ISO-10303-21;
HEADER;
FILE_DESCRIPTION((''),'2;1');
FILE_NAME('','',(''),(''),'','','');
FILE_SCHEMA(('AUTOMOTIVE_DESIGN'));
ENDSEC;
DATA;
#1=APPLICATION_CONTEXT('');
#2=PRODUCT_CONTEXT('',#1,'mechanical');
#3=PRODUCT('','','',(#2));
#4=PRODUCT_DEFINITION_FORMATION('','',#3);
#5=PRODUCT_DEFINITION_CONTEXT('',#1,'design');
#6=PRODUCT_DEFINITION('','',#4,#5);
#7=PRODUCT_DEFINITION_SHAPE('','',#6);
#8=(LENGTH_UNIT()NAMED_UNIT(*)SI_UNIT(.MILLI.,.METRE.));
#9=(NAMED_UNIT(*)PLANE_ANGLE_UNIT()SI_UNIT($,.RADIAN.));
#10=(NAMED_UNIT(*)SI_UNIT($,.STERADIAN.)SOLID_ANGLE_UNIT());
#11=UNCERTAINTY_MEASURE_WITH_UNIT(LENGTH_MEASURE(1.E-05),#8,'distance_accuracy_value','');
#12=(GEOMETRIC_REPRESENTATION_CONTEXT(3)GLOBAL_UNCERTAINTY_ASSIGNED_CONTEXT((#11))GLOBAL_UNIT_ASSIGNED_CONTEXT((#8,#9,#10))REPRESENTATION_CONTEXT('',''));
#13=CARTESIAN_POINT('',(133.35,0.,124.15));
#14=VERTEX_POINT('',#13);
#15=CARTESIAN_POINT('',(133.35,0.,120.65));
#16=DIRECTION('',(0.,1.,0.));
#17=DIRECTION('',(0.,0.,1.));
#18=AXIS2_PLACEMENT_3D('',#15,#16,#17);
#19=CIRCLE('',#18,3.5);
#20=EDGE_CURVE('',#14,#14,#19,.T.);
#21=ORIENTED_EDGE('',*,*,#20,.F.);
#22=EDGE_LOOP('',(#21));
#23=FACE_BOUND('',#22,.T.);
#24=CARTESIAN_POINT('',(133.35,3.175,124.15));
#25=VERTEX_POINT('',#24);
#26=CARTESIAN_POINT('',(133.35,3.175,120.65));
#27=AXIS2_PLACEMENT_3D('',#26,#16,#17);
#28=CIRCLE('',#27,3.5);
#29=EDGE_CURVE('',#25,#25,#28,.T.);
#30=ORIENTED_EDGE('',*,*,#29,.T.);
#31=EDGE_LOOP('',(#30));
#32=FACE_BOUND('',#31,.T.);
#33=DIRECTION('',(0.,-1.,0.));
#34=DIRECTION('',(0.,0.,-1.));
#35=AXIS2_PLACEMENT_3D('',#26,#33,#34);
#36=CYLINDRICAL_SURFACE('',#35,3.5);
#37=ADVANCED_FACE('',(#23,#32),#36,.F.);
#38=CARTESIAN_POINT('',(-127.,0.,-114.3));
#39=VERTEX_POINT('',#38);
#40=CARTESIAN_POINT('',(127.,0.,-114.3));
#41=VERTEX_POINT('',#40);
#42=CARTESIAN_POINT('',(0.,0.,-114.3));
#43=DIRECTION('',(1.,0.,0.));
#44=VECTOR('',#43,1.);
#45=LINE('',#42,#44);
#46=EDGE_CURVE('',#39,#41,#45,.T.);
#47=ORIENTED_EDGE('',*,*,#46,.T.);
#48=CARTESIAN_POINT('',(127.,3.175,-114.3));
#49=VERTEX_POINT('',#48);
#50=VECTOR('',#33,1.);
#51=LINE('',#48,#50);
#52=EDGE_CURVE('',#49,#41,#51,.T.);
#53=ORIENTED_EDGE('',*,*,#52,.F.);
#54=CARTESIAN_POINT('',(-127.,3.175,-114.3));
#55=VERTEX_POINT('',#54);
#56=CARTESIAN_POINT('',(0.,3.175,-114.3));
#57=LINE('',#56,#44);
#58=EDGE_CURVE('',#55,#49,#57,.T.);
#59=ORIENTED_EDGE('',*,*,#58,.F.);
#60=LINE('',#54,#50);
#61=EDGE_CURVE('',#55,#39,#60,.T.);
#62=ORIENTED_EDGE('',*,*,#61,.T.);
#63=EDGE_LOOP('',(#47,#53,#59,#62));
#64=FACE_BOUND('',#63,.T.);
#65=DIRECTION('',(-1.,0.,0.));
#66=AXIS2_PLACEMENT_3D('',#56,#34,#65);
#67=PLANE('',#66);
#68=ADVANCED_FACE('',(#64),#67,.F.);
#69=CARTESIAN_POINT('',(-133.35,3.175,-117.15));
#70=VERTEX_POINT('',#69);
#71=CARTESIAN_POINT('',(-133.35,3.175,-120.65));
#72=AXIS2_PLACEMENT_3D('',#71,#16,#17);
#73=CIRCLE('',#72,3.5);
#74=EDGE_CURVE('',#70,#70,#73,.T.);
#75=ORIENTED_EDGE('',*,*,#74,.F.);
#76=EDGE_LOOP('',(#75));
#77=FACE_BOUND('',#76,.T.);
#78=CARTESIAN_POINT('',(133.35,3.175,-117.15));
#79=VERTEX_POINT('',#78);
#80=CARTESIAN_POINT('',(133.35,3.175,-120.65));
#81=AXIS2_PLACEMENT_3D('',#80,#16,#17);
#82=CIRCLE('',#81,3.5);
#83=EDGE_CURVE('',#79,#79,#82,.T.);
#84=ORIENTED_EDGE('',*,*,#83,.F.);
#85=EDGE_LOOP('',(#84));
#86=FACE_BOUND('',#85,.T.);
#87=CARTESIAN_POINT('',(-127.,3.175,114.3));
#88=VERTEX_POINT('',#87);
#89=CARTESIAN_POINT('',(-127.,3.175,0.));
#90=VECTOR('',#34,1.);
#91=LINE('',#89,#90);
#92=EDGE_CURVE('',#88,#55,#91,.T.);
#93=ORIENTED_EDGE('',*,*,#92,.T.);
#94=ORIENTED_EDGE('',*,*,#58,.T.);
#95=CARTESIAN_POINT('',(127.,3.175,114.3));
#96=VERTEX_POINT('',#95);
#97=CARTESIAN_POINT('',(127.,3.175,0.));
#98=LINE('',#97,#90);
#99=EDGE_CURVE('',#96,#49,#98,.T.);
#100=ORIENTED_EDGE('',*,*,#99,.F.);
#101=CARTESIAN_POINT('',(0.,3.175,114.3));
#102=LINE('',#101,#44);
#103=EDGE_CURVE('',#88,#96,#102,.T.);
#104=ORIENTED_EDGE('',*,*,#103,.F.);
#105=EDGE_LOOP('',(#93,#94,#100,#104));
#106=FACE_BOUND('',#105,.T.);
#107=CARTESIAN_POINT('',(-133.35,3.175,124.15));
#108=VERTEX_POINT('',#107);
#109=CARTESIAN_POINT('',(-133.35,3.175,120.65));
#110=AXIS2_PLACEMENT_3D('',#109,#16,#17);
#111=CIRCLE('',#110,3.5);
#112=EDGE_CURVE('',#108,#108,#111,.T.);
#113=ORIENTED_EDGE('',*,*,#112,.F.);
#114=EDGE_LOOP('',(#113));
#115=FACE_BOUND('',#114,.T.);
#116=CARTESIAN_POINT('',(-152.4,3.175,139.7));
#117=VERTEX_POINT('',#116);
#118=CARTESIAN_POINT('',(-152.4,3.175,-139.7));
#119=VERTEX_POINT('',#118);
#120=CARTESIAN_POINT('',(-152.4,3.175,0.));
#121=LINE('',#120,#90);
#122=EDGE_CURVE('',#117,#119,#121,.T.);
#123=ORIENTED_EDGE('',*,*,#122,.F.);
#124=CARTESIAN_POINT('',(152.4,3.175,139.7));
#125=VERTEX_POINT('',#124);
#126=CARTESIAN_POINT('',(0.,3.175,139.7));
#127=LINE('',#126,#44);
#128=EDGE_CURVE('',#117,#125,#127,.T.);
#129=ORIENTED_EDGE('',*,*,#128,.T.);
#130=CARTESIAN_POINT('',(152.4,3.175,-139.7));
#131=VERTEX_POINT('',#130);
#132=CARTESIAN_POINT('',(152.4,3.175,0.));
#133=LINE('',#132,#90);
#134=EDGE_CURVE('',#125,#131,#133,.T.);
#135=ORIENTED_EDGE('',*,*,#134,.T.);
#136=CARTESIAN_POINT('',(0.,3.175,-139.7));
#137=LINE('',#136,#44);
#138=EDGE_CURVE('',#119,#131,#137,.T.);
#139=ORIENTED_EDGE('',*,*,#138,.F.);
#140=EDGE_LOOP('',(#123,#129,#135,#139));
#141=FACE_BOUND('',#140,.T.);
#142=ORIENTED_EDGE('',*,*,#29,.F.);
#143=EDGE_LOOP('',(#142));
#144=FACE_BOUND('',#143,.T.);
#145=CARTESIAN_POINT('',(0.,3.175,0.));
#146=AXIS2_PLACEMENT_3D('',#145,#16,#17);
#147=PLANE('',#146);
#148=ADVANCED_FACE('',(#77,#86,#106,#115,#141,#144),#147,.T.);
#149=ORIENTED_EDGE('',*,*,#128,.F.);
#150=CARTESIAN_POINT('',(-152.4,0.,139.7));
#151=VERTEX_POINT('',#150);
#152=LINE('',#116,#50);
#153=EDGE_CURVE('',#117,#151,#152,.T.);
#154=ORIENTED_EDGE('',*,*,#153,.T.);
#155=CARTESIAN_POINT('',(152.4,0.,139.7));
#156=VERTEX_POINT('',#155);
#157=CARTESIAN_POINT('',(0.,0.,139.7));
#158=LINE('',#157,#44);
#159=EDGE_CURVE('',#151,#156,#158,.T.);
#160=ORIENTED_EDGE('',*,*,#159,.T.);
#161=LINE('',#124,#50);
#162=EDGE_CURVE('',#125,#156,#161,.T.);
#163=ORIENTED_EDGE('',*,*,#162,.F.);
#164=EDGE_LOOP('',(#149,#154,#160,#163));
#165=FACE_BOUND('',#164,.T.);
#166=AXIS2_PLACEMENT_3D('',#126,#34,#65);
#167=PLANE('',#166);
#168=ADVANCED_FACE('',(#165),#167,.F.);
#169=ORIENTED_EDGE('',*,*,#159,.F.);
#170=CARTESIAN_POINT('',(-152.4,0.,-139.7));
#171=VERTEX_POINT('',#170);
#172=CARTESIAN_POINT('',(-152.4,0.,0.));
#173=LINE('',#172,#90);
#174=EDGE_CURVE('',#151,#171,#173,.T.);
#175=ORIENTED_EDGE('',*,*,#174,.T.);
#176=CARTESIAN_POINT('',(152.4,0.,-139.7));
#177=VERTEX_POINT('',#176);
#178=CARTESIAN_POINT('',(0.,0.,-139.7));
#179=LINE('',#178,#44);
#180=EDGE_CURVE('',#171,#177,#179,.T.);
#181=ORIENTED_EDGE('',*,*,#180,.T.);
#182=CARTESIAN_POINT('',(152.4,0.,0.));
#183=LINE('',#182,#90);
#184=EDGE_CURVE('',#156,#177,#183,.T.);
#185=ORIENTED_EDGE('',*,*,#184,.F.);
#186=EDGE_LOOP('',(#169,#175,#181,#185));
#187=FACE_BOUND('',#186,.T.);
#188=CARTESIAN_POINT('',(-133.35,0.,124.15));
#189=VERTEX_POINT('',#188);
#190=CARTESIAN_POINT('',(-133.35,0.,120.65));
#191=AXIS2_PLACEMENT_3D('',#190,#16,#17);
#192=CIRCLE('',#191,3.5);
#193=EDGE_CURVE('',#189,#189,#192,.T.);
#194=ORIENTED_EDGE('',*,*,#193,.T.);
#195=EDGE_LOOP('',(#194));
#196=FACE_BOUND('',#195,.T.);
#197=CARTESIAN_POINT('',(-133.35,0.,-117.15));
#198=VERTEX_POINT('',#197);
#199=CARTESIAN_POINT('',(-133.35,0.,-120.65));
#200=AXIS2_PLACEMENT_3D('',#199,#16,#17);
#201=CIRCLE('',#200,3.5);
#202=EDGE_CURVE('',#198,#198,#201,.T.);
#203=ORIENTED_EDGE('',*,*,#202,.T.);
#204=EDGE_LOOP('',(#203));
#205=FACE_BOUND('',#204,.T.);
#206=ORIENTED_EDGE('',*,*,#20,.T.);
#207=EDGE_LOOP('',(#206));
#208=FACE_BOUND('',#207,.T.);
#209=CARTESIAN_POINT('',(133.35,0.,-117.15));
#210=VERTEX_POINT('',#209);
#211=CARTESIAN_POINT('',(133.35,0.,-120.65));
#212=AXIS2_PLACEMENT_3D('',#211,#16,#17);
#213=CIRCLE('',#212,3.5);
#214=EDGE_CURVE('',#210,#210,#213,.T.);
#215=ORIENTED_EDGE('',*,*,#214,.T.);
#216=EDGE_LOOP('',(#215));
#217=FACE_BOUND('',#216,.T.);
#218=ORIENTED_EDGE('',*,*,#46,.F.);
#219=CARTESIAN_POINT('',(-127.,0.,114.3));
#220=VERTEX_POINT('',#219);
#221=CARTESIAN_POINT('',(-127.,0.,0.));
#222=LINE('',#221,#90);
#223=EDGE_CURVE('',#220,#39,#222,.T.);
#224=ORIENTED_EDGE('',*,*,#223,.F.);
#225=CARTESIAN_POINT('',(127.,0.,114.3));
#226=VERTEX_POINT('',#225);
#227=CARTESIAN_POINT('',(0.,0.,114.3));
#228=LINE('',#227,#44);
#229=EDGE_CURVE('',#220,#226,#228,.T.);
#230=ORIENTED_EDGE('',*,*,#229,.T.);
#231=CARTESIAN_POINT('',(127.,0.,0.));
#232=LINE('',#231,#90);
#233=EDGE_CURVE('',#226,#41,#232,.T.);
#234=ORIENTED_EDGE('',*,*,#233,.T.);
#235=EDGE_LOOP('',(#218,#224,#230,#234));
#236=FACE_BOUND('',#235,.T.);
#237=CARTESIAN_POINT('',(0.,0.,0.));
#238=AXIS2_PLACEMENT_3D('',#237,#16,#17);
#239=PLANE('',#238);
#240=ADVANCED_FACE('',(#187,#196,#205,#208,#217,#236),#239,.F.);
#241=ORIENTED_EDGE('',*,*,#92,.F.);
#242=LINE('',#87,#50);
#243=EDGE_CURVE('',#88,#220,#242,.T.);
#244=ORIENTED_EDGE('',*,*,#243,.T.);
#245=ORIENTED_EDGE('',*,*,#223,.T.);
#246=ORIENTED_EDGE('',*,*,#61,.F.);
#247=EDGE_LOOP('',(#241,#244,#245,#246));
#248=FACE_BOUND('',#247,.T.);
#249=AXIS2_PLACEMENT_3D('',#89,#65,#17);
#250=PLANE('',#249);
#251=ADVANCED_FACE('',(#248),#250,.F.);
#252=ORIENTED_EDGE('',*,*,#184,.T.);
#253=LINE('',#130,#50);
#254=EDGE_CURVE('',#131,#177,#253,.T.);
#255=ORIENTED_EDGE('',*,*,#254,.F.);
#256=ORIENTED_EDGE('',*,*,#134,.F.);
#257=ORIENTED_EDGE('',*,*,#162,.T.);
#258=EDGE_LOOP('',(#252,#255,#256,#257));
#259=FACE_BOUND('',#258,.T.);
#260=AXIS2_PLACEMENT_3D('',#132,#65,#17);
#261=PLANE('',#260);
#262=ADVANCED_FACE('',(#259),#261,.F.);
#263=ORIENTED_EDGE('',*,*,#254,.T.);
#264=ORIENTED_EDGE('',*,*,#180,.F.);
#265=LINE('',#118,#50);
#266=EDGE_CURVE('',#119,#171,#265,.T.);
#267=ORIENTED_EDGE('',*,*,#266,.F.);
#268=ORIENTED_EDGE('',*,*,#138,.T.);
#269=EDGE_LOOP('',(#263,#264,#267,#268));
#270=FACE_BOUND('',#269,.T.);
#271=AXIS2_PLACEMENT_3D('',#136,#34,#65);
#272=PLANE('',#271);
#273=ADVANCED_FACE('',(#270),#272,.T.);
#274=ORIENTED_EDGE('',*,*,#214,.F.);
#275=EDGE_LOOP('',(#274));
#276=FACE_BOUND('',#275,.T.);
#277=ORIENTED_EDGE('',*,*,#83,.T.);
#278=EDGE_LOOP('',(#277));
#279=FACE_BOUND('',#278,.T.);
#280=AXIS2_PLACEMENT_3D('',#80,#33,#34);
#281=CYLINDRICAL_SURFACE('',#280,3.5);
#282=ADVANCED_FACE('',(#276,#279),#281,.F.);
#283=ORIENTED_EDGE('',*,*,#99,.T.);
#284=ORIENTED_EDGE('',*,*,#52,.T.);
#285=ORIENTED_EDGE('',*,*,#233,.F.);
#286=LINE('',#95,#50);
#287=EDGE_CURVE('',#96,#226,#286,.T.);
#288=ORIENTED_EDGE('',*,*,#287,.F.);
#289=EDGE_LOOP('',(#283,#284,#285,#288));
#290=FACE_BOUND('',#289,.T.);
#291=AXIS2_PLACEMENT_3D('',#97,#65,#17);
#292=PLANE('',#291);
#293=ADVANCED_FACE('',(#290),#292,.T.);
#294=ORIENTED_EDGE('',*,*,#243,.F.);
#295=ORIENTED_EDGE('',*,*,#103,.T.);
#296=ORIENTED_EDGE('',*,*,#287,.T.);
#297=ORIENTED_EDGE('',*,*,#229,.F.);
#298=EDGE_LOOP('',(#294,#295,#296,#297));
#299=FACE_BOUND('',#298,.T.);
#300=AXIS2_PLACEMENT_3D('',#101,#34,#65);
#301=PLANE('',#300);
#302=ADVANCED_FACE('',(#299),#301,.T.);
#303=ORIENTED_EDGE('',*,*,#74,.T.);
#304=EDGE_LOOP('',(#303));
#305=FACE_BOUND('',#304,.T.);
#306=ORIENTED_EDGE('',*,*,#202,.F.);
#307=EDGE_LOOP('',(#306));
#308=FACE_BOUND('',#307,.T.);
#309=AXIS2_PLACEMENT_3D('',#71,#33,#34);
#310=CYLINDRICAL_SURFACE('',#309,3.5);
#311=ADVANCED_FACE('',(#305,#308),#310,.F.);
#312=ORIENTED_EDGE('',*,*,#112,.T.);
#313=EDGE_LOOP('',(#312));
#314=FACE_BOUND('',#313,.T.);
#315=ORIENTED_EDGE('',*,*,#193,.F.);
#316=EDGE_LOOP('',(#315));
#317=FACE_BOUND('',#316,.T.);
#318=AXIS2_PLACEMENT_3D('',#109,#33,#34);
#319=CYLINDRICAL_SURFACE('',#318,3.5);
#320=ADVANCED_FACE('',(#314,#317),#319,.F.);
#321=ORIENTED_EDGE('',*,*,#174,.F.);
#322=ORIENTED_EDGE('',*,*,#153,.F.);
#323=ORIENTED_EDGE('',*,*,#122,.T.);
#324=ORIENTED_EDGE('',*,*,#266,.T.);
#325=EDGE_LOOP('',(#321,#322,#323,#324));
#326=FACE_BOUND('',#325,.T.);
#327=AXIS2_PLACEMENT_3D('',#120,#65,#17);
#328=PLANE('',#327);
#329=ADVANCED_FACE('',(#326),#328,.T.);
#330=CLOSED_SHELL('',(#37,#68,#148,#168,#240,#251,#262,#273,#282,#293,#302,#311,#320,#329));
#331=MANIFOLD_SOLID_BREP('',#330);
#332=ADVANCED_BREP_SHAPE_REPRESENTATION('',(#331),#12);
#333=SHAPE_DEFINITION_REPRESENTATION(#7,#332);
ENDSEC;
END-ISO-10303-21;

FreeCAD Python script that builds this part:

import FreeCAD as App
import Part
import Sketcher
from FreeCAD import Vector
Q = App.Units.Quantity


def add_polygon(sketch, points):
    """Adds a closed chain of lines whose ends are joined by coincident constraints."""
    first, n = sketch.GeometryCount, len(points)
    for a, b in zip(points, points[1:] + points[:1]):
        sketch.addGeometry(Part.LineSegment(App.Vector(*a, 0), App.Vector(*b, 0)), False)
    for i in range(n):
        sketch.addConstraint(Sketcher.Constraint("Coincident", first + i, 2, first + (i + 1) % n, 1))

doc = App.newDocument("Part")
params = doc.addObject("Spreadsheet::Sheet", "Params")
for row, (alias, value) in enumerate([
    ("sketch1_width", "12 in"),
    ("sketch1_width2", "10 in"),
    ("sketch1_height", "11 in"),
    ("sketch1_height2", "9 in"),
    ("pad1_length", "0.125 in"),
], start=1):
    params.set(f"A{row}", alias)
    params.set(f"B{row}", "=" + value)
    params.setAlias(f"B{row}", alias)

body = doc.addObject("PartDesign::Body", "Body")

sketch1 = body.newObject("Sketcher::SketchObject", "Sketch")
sketch1.AttachmentSupport = (doc.getObject("XZ_Plane"), [""])
sketch1.MapMode = "FlatFace"
add_polygon(sketch1, [(-152.4, -139.7), (-152.4, 139.7), (152.4, 139.7), (152.4, -139.7)])
sketch1.addGeometry(Part.Circle(Vector(-133.3, 120.7, 0), Vector(0, 0, 1), 3.5), False)
sketch1.addGeometry(Part.Circle(Vector(133.3, 120.7, 0), Vector(0, 0, 1), 3.5), False)
add_polygon(sketch1, [(127, 114.3), (-127, 114.3), (-127, -114.3), (127, -114.3)])
sketch1.addGeometry(Part.Circle(Vector(-133.3, -120.7, 0), Vector(0, 0, 1), 3.5), False)
sketch1.addGeometry(Part.Circle(Vector(133.3, -120.7, 0), Vector(0, 0, 1), 3.5), False)
sketch1.addConstraint([
    Sketcher.Constraint("Vertical", 0),
    Sketcher.Constraint("Horizontal", 1),
    Sketcher.Constraint("Vertical", 2),
    Sketcher.Constraint("Horizontal", 3),
    Sketcher.Constraint("Horizontal", 6),
    Sketcher.Constraint("Vertical", 7),
    Sketcher.Constraint("Horizontal", 8),
    Sketcher.Constraint("Vertical", 9),
    Sketcher.Constraint("Equal", 4, 5),
    Sketcher.Constraint("Equal", 5, 10),
    Sketcher.Constraint("Equal", 10, 11),
    Sketcher.Constraint("Symmetric", 5, 3, 10, 3, -1, 1),
    Sketcher.Constraint("Symmetric", 4, 3, 11, 3, -1, 1),
    Sketcher.Constraint("Symmetric", 0, 2, 2, 2, -1, 1),
    Sketcher.Constraint("Symmetric", 6, 2, 8, 2, -1, 1),
    Sketcher.Constraint("Symmetric", 4, 3, 5, 3, -2),
    Sketcher.Constraint("DistanceX", 1, 1, 1, 2, Q("12 in")),
    Sketcher.Constraint("DistanceX", 6, 2, 6, 1, Q("10 in")),
    Sketcher.Constraint("DistanceY", 0, 1, 0, 2, Q("11 in")),
    Sketcher.Constraint("DistanceY", 7, 2, 7, 1, Q("9 in")),
    Sketcher.Constraint("DistanceX", 4, 3, 5, 3, Q("10.5 in")),
    Sketcher.Constraint("DistanceY", 10, 3, 4, 3, Q("9.5 in")),
    Sketcher.Constraint("Diameter", 4, 7.0),
])
sketch1.setExpression("Constraints[24]", "Params.sketch1_width")
sketch1.setExpression("Constraints[25]", "Params.sketch1_width2")
sketch1.setExpression("Constraints[26]", "Params.sketch1_height")
sketch1.setExpression("Constraints[27]", "Params.sketch1_height2")
pad1 = body.newObject("PartDesign::Pad", "Pad")
pad1.Profile = sketch1
pad1.setExpression("Length", "Params.pad1_length")
pad1.Reversed = True

doc.recompute()
